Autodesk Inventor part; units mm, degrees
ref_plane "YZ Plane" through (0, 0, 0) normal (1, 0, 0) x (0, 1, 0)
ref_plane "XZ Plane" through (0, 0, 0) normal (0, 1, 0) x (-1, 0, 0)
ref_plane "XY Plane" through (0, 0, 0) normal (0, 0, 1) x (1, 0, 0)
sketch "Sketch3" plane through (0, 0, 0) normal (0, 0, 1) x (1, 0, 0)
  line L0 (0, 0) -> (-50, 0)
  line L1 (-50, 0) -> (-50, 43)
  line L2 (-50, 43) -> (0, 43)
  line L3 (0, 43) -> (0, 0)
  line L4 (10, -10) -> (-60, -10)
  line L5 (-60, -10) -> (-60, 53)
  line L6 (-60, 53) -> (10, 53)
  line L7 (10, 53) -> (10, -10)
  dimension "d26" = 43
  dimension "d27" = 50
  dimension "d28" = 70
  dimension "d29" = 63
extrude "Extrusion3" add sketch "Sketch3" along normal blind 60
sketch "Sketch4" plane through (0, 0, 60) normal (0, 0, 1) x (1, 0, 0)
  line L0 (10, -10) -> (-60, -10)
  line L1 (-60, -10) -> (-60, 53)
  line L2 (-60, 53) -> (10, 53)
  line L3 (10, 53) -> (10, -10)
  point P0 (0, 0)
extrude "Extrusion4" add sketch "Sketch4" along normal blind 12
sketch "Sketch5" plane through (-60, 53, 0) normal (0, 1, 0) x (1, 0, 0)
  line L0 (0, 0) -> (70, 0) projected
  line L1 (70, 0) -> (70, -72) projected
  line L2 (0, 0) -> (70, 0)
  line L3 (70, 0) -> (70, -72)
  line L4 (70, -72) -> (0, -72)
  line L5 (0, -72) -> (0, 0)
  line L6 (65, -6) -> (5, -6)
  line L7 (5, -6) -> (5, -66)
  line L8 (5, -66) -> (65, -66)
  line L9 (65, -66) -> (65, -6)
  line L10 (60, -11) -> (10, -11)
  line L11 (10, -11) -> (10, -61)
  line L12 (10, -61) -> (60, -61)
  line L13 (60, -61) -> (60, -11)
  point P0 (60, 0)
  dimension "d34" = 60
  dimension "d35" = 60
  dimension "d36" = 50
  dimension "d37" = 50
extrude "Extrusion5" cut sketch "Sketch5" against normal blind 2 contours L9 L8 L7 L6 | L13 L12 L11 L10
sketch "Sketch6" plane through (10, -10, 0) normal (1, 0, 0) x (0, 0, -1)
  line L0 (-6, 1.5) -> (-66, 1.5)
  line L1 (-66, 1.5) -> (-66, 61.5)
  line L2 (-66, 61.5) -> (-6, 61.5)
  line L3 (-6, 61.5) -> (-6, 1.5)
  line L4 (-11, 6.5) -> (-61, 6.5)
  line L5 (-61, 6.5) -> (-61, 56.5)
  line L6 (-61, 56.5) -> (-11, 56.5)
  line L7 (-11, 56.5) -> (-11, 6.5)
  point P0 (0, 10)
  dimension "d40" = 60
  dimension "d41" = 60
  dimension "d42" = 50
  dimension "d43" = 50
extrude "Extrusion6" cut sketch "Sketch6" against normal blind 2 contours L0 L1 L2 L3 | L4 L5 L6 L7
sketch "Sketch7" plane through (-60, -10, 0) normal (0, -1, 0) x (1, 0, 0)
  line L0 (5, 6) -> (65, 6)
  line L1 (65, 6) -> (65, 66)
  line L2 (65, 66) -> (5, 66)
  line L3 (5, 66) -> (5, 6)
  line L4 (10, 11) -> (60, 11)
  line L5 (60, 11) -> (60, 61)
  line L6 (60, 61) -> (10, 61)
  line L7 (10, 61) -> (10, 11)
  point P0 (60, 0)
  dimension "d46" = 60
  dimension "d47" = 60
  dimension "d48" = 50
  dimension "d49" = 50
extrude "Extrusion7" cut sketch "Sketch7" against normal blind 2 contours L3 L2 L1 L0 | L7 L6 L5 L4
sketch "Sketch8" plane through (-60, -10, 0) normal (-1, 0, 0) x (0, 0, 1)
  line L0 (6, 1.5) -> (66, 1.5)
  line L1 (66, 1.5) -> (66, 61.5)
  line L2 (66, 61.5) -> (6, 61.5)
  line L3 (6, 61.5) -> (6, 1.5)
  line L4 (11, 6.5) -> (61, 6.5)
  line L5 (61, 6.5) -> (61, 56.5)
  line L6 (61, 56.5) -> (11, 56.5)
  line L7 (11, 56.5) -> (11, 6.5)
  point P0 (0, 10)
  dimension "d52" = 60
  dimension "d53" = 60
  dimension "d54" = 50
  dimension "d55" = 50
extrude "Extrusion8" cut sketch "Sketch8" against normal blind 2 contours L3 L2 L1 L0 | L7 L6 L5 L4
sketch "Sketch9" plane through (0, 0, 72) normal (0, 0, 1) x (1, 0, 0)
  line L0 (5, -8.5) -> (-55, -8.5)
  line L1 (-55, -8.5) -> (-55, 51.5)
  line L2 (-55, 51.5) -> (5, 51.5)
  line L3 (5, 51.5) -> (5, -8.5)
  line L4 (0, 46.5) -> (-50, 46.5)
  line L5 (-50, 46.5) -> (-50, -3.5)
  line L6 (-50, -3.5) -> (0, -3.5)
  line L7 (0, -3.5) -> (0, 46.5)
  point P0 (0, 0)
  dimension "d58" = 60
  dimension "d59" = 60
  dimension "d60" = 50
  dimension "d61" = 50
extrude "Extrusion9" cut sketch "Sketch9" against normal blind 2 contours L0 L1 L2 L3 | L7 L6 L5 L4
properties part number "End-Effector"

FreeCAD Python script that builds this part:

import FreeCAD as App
import Part
import Sketcher

V = App.Vector


def add_polygon(sketch, points):
    """Adds a closed chain of lines whose ends are joined by coincident constraints."""
    first, n = sketch.GeometryCount, len(points)
    for a, b in zip(points, points[1:] + points[:1]):
        sketch.addGeometry(Part.LineSegment(App.Vector(*a, 0), App.Vector(*b, 0)), False)
    for i in range(n):
        sketch.addConstraint(Sketcher.Constraint("Coincident", first + i, 2, first + (i + 1) % n, 1))

doc = App.newDocument("Part")
body = doc.addObject("PartDesign::Body", "Body")

# Sketch on XY plane
sketch1 = doc.addObject("Sketcher::SketchObject", "Sketch")
body.addObject(sketch1)
sketch1.AttachmentSupport = (doc.XY_Plane, [""])
sketch1.MapMode = "FlatFace"
add_polygon(sketch1, [(-60, -10), (10, -10), (10, 53), (-60, 53)])  # lines 0-3
add_polygon(sketch1, [(0, 43), (0, 0), (-50, 0), (-50, 43)])  # lines 4-7
sketch1.addConstraint([
    Sketcher.Constraint("Horizontal", 0),
    Sketcher.Constraint("Vertical", 1),
    Sketcher.Constraint("Horizontal", 2),
    Sketcher.Constraint("Vertical", 3),
    Sketcher.Constraint("Vertical", 4),
    Sketcher.Constraint("Horizontal", 5),
    Sketcher.Constraint("Vertical", 6),
    Sketcher.Constraint("Horizontal", 7),
    Sketcher.Constraint("Coincident", 4, 2, -1, 1),
    Sketcher.Constraint("DistanceX", 0, 1, 0, 2, 70.0),
    Sketcher.Constraint("DistanceX", 5, 2, 5, 1, 50.0),
    Sketcher.Constraint("DistanceY", 1, 1, 1, 2, 63.0),
    Sketcher.Constraint("DistanceY", 4, 2, 4, 1, 43.0),
    Sketcher.Constraint("DistanceX", -1, 1, 0, 2, 10.0),
    Sketcher.Constraint("DistanceY", 0, 2, -1, 1, 10.0),
])
pad1 = doc.addObject("PartDesign::Pad", "Pad")
body.addObject(pad1)
pad1.Profile = sketch1
pad1.Length = 60

# Sketch on XY plane
sketch2 = doc.addObject("Sketcher::SketchObject", "Sketch001")
body.addObject(sketch2)
sketch2.AttachmentSupport = (doc.XY_Plane, [""])
sketch2.MapMode = "FlatFace"
sketch2.AttachmentOffset = App.Placement(V(0, 0, 60), App.Rotation())
add_polygon(sketch2, [(-60, -10), (10, -10), (10, 53), (-60, 53)])  # lines 0-3
sketch2.addConstraint([
    Sketcher.Constraint("Horizontal", 0),
    Sketcher.Constraint("Vertical", 1),
    Sketcher.Constraint("Horizontal", 2),
    Sketcher.Constraint("Vertical", 3),
    Sketcher.Constraint("DistanceX", 0, 1, 0, 2, 70.0),
    Sketcher.Constraint("DistanceY", 1, 1, 1, 2, 63.0),
    Sketcher.Constraint("DistanceX", -1, 1, 0, 2, 10.0),
    Sketcher.Constraint("DistanceY", 0, 2, -1, 1, 10.0),
])
pad2 = doc.addObject("PartDesign::Pad", "Pad001")
body.addObject(pad2)
pad2.Profile = sketch2
pad2.Length = 12

# Sketch on XZ plane
sketch3 = doc.addObject("Sketcher::SketchObject", "Sketch002")
body.addObject(sketch3)
sketch3.AttachmentSupport = (doc.XZ_Plane, [""])
sketch3.MapMode = "FlatFace"
sketch3.AttachmentOffset = App.Placement(V(0, 0, -53), App.Rotation())
add_polygon(sketch3, [(5, 66), (5, 6), (-55, 6), (-55, 66)])  # lines 0-3
sketch3.addConstraint([
    Sketcher.Constraint("Vertical", 0),
    Sketcher.Constraint("Horizontal", 1),
    Sketcher.Constraint("Vertical", 2),
    Sketcher.Constraint("Horizontal", 3),
    Sketcher.Constraint("Equal", 3, 0),
    Sketcher.Constraint("DistanceX", 1, 2, 1, 1, 60.0),
    Sketcher.Constraint("DistanceX", -1, 1, 0, 2, 5.0),
    Sketcher.Constraint("DistanceY", -1, 1, 0, 2, 6.0),
])
pocket1 = doc.addObject("PartDesign::Pocket", "Pocket")
body.addObject(pocket1)
pocket1.Profile = sketch3
pocket1.Length = 2
pocket1.Reversed = True

# Sketch on YZ plane
sketch4 = doc.addObject("Sketcher::SketchObject", "Sketch003")
body.addObject(sketch4)
sketch4.AttachmentSupport = (doc.YZ_Plane, [""])
sketch4.MapMode = "FlatFace"
sketch4.AttachmentOffset = App.Placement(V(0, 0, 10), App.Rotation())
add_polygon(sketch4, [(-8, 66), (-8, 6), (52, 6), (52, 66)])  # lines 0-3
sketch4.addConstraint([
    Sketcher.Constraint("Vertical", 0),
    Sketcher.Constraint("Horizontal", 1),
    Sketcher.Constraint("Vertical", 2),
    Sketcher.Constraint("Horizontal", 3),
    Sketcher.Constraint("Equal", 3, 0),
    Sketcher.Constraint("DistanceX", 1, 1, 1, 2, 60.0),
    Sketcher.Constraint("DistanceY", -1, 1, 0, 2, 6.0),
    Sketcher.Constraint("DistanceX", 0, 2, -1, 1, 8.5),
])
pocket2 = doc.addObject("PartDesign::Pocket", "Pocket001")
body.addObject(pocket2)
pocket2.Profile = sketch4
pocket2.Length = 2

# Sketch on XZ plane
sketch5 = doc.addObject("Sketcher::SketchObject", "Sketch004")
body.addObject(sketch5)
sketch5.AttachmentSupport = (doc.XZ_Plane, [""])
sketch5.MapMode = "FlatFace"
sketch5.AttachmentOffset = App.Placement(V(0, 0, 10), App.Rotation())
add_polygon(sketch5, [(-55, 66), (-55, 6), (5, 6), (5, 66)])  # lines 0-3
sketch5.addConstraint([
    Sketcher.Constraint("Vertical", 0),
    Sketcher.Constraint("Horizontal", 1),
    Sketcher.Constraint("Vertical", 2),
    Sketcher.Constraint("Horizontal", 3),
    Sketcher.Constraint("Equal", 3, 0),
    Sketcher.Constraint("DistanceX", 1, 1, 1, 2, 60.0),
    Sketcher.Constraint("DistanceX", 0, 2, -1, 1, 55.0),
    Sketcher.Constraint("DistanceY", -1, 1, 0, 2, 6.0),
])
pocket3 = doc.addObject("PartDesign::Pocket", "Pocket002")
body.addObject(pocket3)
pocket3.Profile = sketch5
pocket3.Length = 2

# Sketch on YZ plane
sketch6 = doc.addObject("Sketcher::SketchObject", "Sketch005")
body.addObject(sketch6)
sketch6.AttachmentSupport = (doc.YZ_Plane, [""])
sketch6.MapMode = "FlatFace"
sketch6.AttachmentOffset = App.Placement(V(0, 0, -60), App.Rotation())
add_polygon(sketch6, [(52, 6), (-8, 6), (-8, 66), (52, 66)])  # lines 0-3
sketch6.addConstraint([
    Sketcher.Constraint("Horizontal", 0),
    Sketcher.Constraint("Vertical", 1),
    Sketcher.Constraint("Horizontal", 2),
    Sketcher.Constraint("Vertical", 3),
    Sketcher.Constraint("Equal", 2, 1),
    Sketcher.Constraint("DistanceX", 0, 2, 0, 1, 60.0),
    Sketcher.Constraint("DistanceY", -1, 1, 0, 2, 6.0),
    Sketcher.Constraint("DistanceX", 0, 2, -1, 1, 8.5),
])
pocket4 = doc.addObject("PartDesign::Pocket", "Pocket003")
body.addObject(pocket4)
pocket4.Profile = sketch6
pocket4.Length = 2
pocket4.Reversed = True

# Sketch on XY plane
sketch7 = doc.addObject("Sketcher::SketchObject", "Sketch006")
body.addObject(sketch7)
sketch7.AttachmentSupport = (doc.XY_Plane, [""])
sketch7.MapMode = "FlatFace"
sketch7.AttachmentOffset = App.Placement(V(0, 0, 72), App.Rotation())
add_polygon(sketch7, [(-55, -8), (5, -8), (5, 52), (-55, 52)])  # lines 0-3
sketch7.addConstraint([
    Sketcher.Constraint("Horizontal", 0),
    Sketcher.Constraint("Vertical", 1),
    Sketcher.Constraint("Horizontal", 2),
    Sketcher.Constraint("Vertical", 3),
    Sketcher.Constraint("Equal", 2, 1),
    Sketcher.Constraint("DistanceX", 0, 1, 0, 2, 60.0),
    Sketcher.Constraint("DistanceX", -1, 1, 0, 2, 5.0),
    Sketcher.Constraint("DistanceY", 0, 2, -1, 1, 8.5),
])
pocket5 = doc.addObject("PartDesign::Pocket", "Pocket004")
body.addObject(pocket5)
pocket5.Profile = sketch7
pocket5.Length = 2

doc.recompute()
